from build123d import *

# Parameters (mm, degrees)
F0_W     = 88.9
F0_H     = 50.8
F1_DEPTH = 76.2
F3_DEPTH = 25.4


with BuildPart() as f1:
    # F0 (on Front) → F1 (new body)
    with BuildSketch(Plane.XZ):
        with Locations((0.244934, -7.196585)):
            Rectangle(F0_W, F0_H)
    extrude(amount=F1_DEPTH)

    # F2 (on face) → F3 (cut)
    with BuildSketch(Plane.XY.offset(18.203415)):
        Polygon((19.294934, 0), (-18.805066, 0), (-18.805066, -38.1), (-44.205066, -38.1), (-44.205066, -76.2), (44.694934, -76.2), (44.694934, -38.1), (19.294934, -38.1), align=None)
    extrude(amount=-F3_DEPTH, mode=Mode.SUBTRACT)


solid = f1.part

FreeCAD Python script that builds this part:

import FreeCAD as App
import Part
import Sketcher
from FreeCAD import Vector
Q = App.Units.Quantity


def add_polygon(sketch, points):
    """Adds a closed chain of lines whose ends are joined by coincident constraints."""
    first, n = sketch.GeometryCount, len(points)
    for a, b in zip(points, points[1:] + points[:1]):
        sketch.addGeometry(Part.LineSegment(App.Vector(*a, 0), App.Vector(*b, 0)), False)
    for i in range(n):
        sketch.addConstraint(Sketcher.Constraint("Coincident", first + i, 2, first + (i + 1) % n, 1))

doc = App.newDocument("Part")
body = doc.addObject("PartDesign::Body", "Body")

# Sketch on XZ plane
sketch1 = body.newObject("Sketcher::SketchObject", "Sketch")
sketch1.AttachmentSupport = (doc.getObject("XZ_Plane"), [""])
sketch1.MapMode = "FlatFace"
add_polygon(sketch1, [(-44.205066, 18.203415), (-44.205066, -32.596585), (44.694934, -32.596585), (44.694934, 18.203415)])  # lines 0-3
sketch1.addConstraint([
    Sketcher.Constraint("Vertical", 0),
    Sketcher.Constraint("Horizontal", 1),
    Sketcher.Constraint("Vertical", 2),
    Sketcher.Constraint("Horizontal", 3),
    Sketcher.Constraint("DistanceY", 0, 2, 0, 1, Q("2 in")),
    Sketcher.Constraint("DistanceX", 1, 1, 1, 2, Q("3.5 in")),
    Sketcher.Constraint("DistanceX", 0, 2, -1, 1, 44.205066),
    Sketcher.Constraint("DistanceY", 0, 2, -1, 1, 32.596585),
])
pad1 = body.newObject("PartDesign::Pad", "Pad")
pad1.Profile = sketch1
pad1.Length = Q("3 in")

# Sketch on XY plane
sketch2 = body.newObject("Sketcher::SketchObject", "Sketch001")
sketch2.AttachmentSupport = (doc.getObject("XY_Plane"), [""])
sketch2.MapMode = "FlatFace"
sketch2.AttachmentOffset = App.Placement(Vector(0, 0, 18.203415), App.Rotation())
add_polygon(sketch2, [(19.294934, 0), (-18.805066, 0), (-18.805066, -38.1), (-44.205066, -38.1), (-44.205066, -76.2), (44.694934, -76.2), (44.694934, -38.1), (19.294934, -38.1)])  # lines 0-7
sketch2.addConstraint([
    Sketcher.Constraint("Horizontal", 0),
    Sketcher.Constraint("Vertical", 1),
    Sketcher.Constraint("Horizontal", 2),
    Sketcher.Constraint("Vertical", 3),
    Sketcher.Constraint("Horizontal", 4),
    Sketcher.Constraint("Vertical", 5),
    Sketcher.Constraint("Horizontal", 6),
    Sketcher.Constraint("Vertical", 7),
    Sketcher.Constraint("PointOnObject", 0, 2, -1),
    Sketcher.Constraint("Horizontal", 2, 2, 5, 2),
    Sketcher.Constraint("Equal", 2, 6),
    Sketcher.Constraint("Equal", 0, 1),
    Sketcher.Constraint("Equal", 1, 3),
    Sketcher.Constraint("DistanceX", 2, 2, 2, 1, Q("1 in")),
    Sketcher.Constraint("DistanceX", 0, 2, 0, 1, Q("1.5 in")),
    Sketcher.Constraint("DistanceX", 0, 2, -1, 1, 18.805066),
])
pocket1 = body.newObject("PartDesign::Pocket", "Pocket")
pocket1.Profile = sketch2
pocket1.Length = Q("1 in")

doc.recompute()
